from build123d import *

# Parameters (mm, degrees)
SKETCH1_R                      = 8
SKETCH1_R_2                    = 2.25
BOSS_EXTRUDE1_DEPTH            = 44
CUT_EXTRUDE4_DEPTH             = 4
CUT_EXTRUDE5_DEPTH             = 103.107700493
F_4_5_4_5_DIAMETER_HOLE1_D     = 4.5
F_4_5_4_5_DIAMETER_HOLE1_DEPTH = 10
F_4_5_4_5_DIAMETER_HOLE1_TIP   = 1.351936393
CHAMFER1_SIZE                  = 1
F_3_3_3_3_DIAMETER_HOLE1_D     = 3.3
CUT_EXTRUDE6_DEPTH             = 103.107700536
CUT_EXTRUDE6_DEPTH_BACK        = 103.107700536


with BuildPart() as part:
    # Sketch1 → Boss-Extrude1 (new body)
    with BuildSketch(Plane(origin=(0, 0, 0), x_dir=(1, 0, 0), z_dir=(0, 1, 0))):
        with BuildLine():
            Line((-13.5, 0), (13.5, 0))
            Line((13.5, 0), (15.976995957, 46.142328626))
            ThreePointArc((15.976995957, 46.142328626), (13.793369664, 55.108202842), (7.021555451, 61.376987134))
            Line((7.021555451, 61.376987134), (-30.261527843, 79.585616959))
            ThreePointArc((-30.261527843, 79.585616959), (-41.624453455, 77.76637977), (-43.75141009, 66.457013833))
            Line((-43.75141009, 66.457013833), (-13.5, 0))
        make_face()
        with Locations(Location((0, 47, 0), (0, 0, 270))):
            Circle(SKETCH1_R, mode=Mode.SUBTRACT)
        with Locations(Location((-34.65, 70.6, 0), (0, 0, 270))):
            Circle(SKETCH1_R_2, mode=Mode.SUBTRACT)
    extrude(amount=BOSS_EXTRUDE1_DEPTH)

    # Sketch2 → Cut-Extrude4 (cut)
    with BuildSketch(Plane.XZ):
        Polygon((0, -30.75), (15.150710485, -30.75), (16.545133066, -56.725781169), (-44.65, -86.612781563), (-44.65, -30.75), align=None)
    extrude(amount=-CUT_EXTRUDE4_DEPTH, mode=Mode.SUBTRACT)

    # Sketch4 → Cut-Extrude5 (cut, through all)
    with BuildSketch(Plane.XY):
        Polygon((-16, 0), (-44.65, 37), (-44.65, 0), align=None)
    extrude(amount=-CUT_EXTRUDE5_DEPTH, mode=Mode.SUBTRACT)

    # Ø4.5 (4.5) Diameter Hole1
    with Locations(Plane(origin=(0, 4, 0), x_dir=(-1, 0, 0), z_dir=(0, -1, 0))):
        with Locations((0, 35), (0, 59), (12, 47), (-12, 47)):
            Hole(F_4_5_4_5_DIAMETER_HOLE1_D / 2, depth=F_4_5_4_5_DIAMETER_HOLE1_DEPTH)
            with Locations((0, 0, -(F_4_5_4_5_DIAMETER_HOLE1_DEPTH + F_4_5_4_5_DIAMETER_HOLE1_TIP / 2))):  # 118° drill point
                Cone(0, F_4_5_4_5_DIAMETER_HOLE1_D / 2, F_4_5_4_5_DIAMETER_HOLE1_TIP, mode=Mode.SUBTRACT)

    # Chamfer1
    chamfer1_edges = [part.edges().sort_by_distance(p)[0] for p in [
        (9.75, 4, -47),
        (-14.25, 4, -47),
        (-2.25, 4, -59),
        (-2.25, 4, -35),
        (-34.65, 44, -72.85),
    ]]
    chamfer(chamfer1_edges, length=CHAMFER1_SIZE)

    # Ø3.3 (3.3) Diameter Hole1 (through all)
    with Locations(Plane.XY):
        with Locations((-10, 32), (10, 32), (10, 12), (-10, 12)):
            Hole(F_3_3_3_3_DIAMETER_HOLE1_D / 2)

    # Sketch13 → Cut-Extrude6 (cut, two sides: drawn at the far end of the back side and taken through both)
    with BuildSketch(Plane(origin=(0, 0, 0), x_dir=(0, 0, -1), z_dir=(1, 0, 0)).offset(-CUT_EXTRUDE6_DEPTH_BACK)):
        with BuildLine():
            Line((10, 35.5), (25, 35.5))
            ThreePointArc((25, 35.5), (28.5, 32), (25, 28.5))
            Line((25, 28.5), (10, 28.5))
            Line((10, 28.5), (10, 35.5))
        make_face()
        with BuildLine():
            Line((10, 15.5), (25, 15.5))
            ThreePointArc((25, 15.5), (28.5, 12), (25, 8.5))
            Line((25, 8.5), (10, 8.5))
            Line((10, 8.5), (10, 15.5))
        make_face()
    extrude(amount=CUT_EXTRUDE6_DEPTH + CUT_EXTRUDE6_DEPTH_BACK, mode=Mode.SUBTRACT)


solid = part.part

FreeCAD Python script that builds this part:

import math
import FreeCAD as App
import Part
import Sketcher

V = App.Vector


def edges_at(feature, points):
    """Names of the edges that pass closest to the given points."""
    edges = feature.Shape.Edges
    near = lambda p: min(range(len(edges)), key=lambda i: edges[i].distToShape(Part.Vertex(*p))[0])
    return sorted({f"Edge{near(p) + 1}" for p in points})


def add_polygon(sketch, points):
    """Adds a closed chain of lines whose ends are joined by coincident constraints."""
    first, n = sketch.GeometryCount, len(points)
    for a, b in zip(points, points[1:] + points[:1]):
        sketch.addGeometry(Part.LineSegment(App.Vector(*a, 0), App.Vector(*b, 0)), False)
    for i in range(n):
        sketch.addConstraint(Sketcher.Constraint("Coincident", first + i, 2, first + (i + 1) % n, 1))

doc = App.newDocument("Part")
body = doc.addObject("PartDesign::Body", "Body")

# Sketch on XZ plane
sketch1 = body.newObject("Sketcher::SketchObject", "Sketch")
sketch1.AttachmentSupport = (doc.getObject("XZ_Plane"), [""])
sketch1.MapMode = "FlatFace"
sketch1.addGeometry(Part.LineSegment(V(-13.5, 0, 0), V(13.5, 0, 0)), False)
sketch1.addGeometry(Part.LineSegment(V(13.5, 0, 0), V(16, -46.1, 0)), False)
sketch1.addGeometry(Part.ArcOfCircle(Part.Circle(V(0, -47, 0), V(0, 0, 1), 16), math.radians(-64), math.radians(3)), False)
sketch1.addGeometry(Part.LineSegment(V(7, -61.4, 0), V(-30.3, -79.6, 0)), False)
sketch1.addGeometry(Part.ArcOfCircle(Part.Circle(V(-34.6, -70.6, 0), V(0, 0, 1), 10), math.radians(156), math.radians(296)), False)
sketch1.addGeometry(Part.LineSegment(V(-43.8, -66.5, 0), V(-13.5, 0, 0)), False)
sketch1.addGeometry(Part.Circle(V(0, -47, 0), V(0, 0, 1), 8), False)
sketch1.addGeometry(Part.Circle(V(-34.6, -70.6, 0), V(0, 0, 1), 2.2), False)
sketch1.addConstraint(Sketcher.Constraint("Coincident", 0, 2, 1, 1))
sketch1.addConstraint(Sketcher.Constraint("Tangent", 1, 2, 2, 2))
sketch1.addConstraint(Sketcher.Constraint("Tangent", 2, 1, 3, 1))
sketch1.addConstraint(Sketcher.Constraint("Tangent", 3, 2, 4, 2))
sketch1.addConstraint(Sketcher.Constraint("Tangent", 4, 1, 5, 1))
sketch1.addConstraint(Sketcher.Constraint("Coincident", 5, 2, 0, 1))
sketch1.addConstraint(Sketcher.Constraint("Horizontal", 0))
sketch1.addConstraint(Sketcher.Constraint("Coincident", 6, 3, 2, 3))
sketch1.addConstraint(Sketcher.Constraint("Coincident", 7, 3, 4, 3))
sketch1.addConstraint(Sketcher.Constraint("Symmetric", 0, 2, 5, 2, -1, 1))
sketch1.addConstraint(Sketcher.Constraint("PointOnObject", 2, 3, -2))
sketch1.addConstraint(Sketcher.Constraint("Diameter", 6, 16.0))
sketch1.addConstraint(Sketcher.Constraint("Radius", 2, 16.0))
sketch1.addConstraint(Sketcher.Constraint("Radius", 4, 10.0))
sketch1.addConstraint(Sketcher.Constraint("Diameter", 7, 4.5))
sketch1.addConstraint(Sketcher.Constraint("DistanceX", 0, 1, 0, 2, 27.0))
sketch1.addConstraint(Sketcher.Constraint("DistanceY", 2, 3, -1, 1, 47.0))
sketch1.addConstraint(Sketcher.Constraint("DistanceY", 4, 3, -1, 1, 70.6))
sketch1.addConstraint(Sketcher.Constraint("DistanceX", 4, 3, -1, 1, 34.65))
pad1 = body.newObject("PartDesign::Pad", "Pad")
pad1.Profile = sketch1
pad1.Length = 44
pad1.Reversed = True

# Sketch on XZ plane
sketch2 = body.newObject("Sketcher::SketchObject", "Sketch001")
sketch2.AttachmentSupport = (doc.getObject("XZ_Plane"), [""])
sketch2.MapMode = "FlatFace"
add_polygon(sketch2, [(15, -31), (-45, -31), (-45, -87), (17, -57)])  # lines 0-3
sketch2.addConstraint(Sketcher.Constraint("Horizontal", 0))
sketch2.addConstraint(Sketcher.Constraint("Vertical", 1))
sketch2.addConstraint(Sketcher.Constraint("DistanceX", 0, 2, -1, 1, 44.65))
sketch2.addConstraint(Sketcher.Constraint("DistanceY", 0, 2, -1, 1, 30.75))
sketch2.addConstraint(Sketcher.Constraint("DistanceY", 1, 2, 2, 2, 29.887))
sketch2.addConstraint(Sketcher.Constraint("DistanceX", 0, 2, 0, 1, 59.80071))
sketch2.addConstraint(Sketcher.Constraint("DistanceY", 1, 2, 1, 1, 55.862782))
sketch2.addConstraint(Sketcher.Constraint("Distance", 2, 68.103429))
pocket1 = body.newObject("PartDesign::Pocket", "Pocket")
pocket1.Profile = sketch2
pocket1.Length = 4

# Sketch on XY plane
sketch3 = body.newObject("Sketcher::SketchObject", "Sketch002")
sketch3.AttachmentSupport = (doc.getObject("XY_Plane"), [""])
sketch3.MapMode = "FlatFace"
add_polygon(sketch3, [(-16, 0), (-45, 37), (-45, 0)])  # lines 0-2
sketch3.addConstraint(Sketcher.Constraint("Vertical", 1))
sketch3.addConstraint(Sketcher.Constraint("Horizontal", 2))
sketch3.addConstraint(Sketcher.Constraint("PointOnObject", 1, 2, -1))
sketch3.addConstraint(Sketcher.Constraint("DistanceY", 1, 2, 1, 1, 37.0))
sketch3.addConstraint(Sketcher.Constraint("DistanceX", 2, 2, -1, 1, 16.0))
sketch3.addConstraint(Sketcher.Constraint("DistanceX", 2, 1, 2, 2, 28.65))
pocket2 = body.newObject("PartDesign::Pocket", "Pocket001")
pocket2.Profile = sketch3
pocket2.Type = "ThroughAll"

# Sketch on XZ plane
sketch4 = body.newObject("Sketcher::SketchObject", "Sketch003")
sketch4.AttachmentSupport = (doc.getObject("XZ_Plane"), [""])
sketch4.MapMode = "FlatFace"
sketch4.AttachmentOffset = App.Placement(V(0, 0, -4), App.Rotation())
sketch4.addGeometry(Part.Circle(V(0, -35, 0), V(0, 0, 1), 2.2), False)
sketch4.addGeometry(Part.Circle(V(0, -59, 0), V(0, 0, 1), 2.2), False)
sketch4.addGeometry(Part.Circle(V(-12, -47, 0), V(0, 0, 1), 2.2), False)
sketch4.addGeometry(Part.Circle(V(12, -47, 0), V(0, 0, 1), 2.2), False)
sketch4.addConstraint(Sketcher.Constraint("Equal", 0, 1))
sketch4.addConstraint(Sketcher.Constraint("Equal", 1, 2))
sketch4.addConstraint(Sketcher.Constraint("Equal", 2, 3))
sketch4.addConstraint(Sketcher.Constraint("Symmetric", 2, 3, 3, 3, -2))
sketch4.addConstraint(Sketcher.Constraint("PointOnObject", 0, 3, -2))
sketch4.addConstraint(Sketcher.Constraint("PointOnObject", 1, 3, -2))
sketch4.addConstraint(Sketcher.Constraint("Diameter", 0, 4.5))
sketch4.addConstraint(Sketcher.Constraint("DistanceY", 0, 3, -1, 1, 35.0))
sketch4.addConstraint(Sketcher.Constraint("DistanceY", 1, 3, -1, 1, 59.0))
sketch4.addConstraint(Sketcher.Constraint("DistanceX", 2, 3, -1, 1, 12.0))
sketch4.addConstraint(Sketcher.Constraint("DistanceY", 2, 3, -1, 1, 47.0))
doc.recompute()
hole = body.newObject("PartDesign::Hole", "Hole")
hole.Profile = sketch4
hole.ThreadType = "None"
hole.Diameter = 4.5
hole.DepthType = "Dimension"
hole.Depth = 10
hole.DrillPoint = "Angled"
hole.DrillPointAngle = 118
doc.recompute()

chamfer = body.newObject("PartDesign::Chamfer", "Chamfer")
chamfer.Base = (hole, edges_at(hole, [
    (9.75, 4, -47),
    (-14.25, 4, -47),
    (-2.25, 4, -59),
    (-2.25, 4, -35),
    (-34.65, 44, -72.85),
]))
chamfer.Size = 1

# Sketch on XY plane
sketch5 = body.newObject("Sketcher::SketchObject", "Sketch004")
sketch5.AttachmentSupport = (doc.getObject("XY_Plane"), [""])
sketch5.MapMode = "FlatFace"
sketch5.addGeometry(Part.Circle(V(-10, 32, 0), V(0, 0, 1), 1.6), False)
sketch5.addGeometry(Part.Circle(V(10, 32, 0), V(0, 0, 1), 1.6), False)
sketch5.addGeometry(Part.Circle(V(10, 12, 0), V(0, 0, 1), 1.6), False)
sketch5.addGeometry(Part.Circle(V(-10, 12, 0), V(0, 0, 1), 1.6), False)
sketch5.addConstraint(Sketcher.Constraint("Equal", 0, 1))
sketch5.addConstraint(Sketcher.Constraint("Equal", 1, 2))
sketch5.addConstraint(Sketcher.Constraint("Equal", 2, 3))
sketch5.addConstraint(Sketcher.Constraint("Symmetric", 0, 3, 1, 3, -2))
sketch5.addConstraint(Sketcher.Constraint("Symmetric", 2, 3, 3, 3, -2))
sketch5.addConstraint(Sketcher.Constraint("Vertical", 1, 3, 2, 3))
sketch5.addConstraint(Sketcher.Constraint("Diameter", 0, 3.3))
sketch5.addConstraint(Sketcher.Constraint("DistanceX", 0, 3, -1, 1, 10.0))
sketch5.addConstraint(Sketcher.Constraint("DistanceY", -1, 1, 0, 3, 32.0))
sketch5.addConstraint(Sketcher.Constraint("DistanceY", -1, 1, 2, 3, 12.0))
doc.recompute()
hole2 = body.newObject("PartDesign::Hole", "Hole001")
hole2.Profile = sketch5
hole2.ThreadType = "None"
hole2.Diameter = 3.3
hole2.DepthType = "ThroughAll"

# Sketch on YZ plane
sketch6 = body.newObject("Sketcher::SketchObject", "Sketch005")
sketch6.AttachmentSupport = (doc.getObject("YZ_Plane"), [""])
sketch6.MapMode = "FlatFace"
sketch6.addGeometry(Part.LineSegment(V(35.5, -25, 0), V(35.5, -10, 0)), False)
sketch6.addGeometry(Part.LineSegment(V(35.5, -10, 0), V(28.5, -10, 0)), False)
sketch6.addGeometry(Part.LineSegment(V(28.5, -10, 0), V(28.5, -25, 0)), False)
sketch6.addGeometry(Part.ArcOfCircle(Part.Circle(V(32, -25, 0), V(0, 0, 1), 3.5), math.radians(180), math.radians(360)), False)
sketch6.addGeometry(Part.LineSegment(V(15.5, -25, 0), V(15.5, -10, 0)), False)
sketch6.addGeometry(Part.LineSegment(V(15.5, -10, 0), V(8.5, -10, 0)), False)
sketch6.addGeometry(Part.LineSegment(V(8.5, -10, 0), V(8.5, -25, 0)), False)
sketch6.addGeometry(Part.ArcOfCircle(Part.Circle(V(12, -25, 0), V(0, 0, 1), 3.5), math.radians(180), math.radians(360)), False)
sketch6.addConstraint(Sketcher.Constraint("Coincident", 0, 2, 1, 1))
sketch6.addConstraint(Sketcher.Constraint("Coincident", 1, 2, 2, 1))
sketch6.addConstraint(Sketcher.Constraint("Tangent", 2, 2, 3, 1))
sketch6.addConstraint(Sketcher.Constraint("Tangent", 3, 2, 0, 1))
sketch6.addConstraint(Sketcher.Constraint("Coincident", 4, 2, 5, 1))
sketch6.addConstraint(Sketcher.Constraint("Coincident", 5, 2, 6, 1))
sketch6.addConstraint(Sketcher.Constraint("Tangent", 6, 2, 7, 1))
sketch6.addConstraint(Sketcher.Constraint("Tangent", 7, 2, 4, 1))
sketch6.addConstraint(Sketcher.Constraint("Vertical", 0))
sketch6.addConstraint(Sketcher.Constraint("Horizontal", 1))
sketch6.addConstraint(Sketcher.Constraint("Vertical", 2))
sketch6.addConstraint(Sketcher.Constraint("Vertical", 4))
sketch6.addConstraint(Sketcher.Constraint("Horizontal", 5))
sketch6.addConstraint(Sketcher.Constraint("Vertical", 6))
sketch6.addConstraint(Sketcher.Constraint("Equal", 3, 7))
sketch6.addConstraint(Sketcher.Constraint("Horizontal", 3, 3, 7, 3))
sketch6.addConstraint(Sketcher.Constraint("Horizontal", 1, 2, 4, 2))
sketch6.addConstraint(Sketcher.Constraint("Radius", 3, 3.5))
sketch6.addConstraint(Sketcher.Constraint("DistanceY", 0, 1, 0, 2, 15.0))
sketch6.addConstraint(Sketcher.Constraint("DistanceX", -1, 1, 3, 3, 32.0))
sketch6.addConstraint(Sketcher.Constraint("DistanceY", 3, 3, -1, 1, 25.0))
sketch6.addConstraint(Sketcher.Constraint("DistanceX", -1, 1, 7, 3, 12.0))
pocket3 = body.newObject("PartDesign::Pocket", "Pocket002")
pocket3.Profile = sketch6
pocket3.Type = "ThroughAll"
pocket3.Midplane = True

doc.recompute()
